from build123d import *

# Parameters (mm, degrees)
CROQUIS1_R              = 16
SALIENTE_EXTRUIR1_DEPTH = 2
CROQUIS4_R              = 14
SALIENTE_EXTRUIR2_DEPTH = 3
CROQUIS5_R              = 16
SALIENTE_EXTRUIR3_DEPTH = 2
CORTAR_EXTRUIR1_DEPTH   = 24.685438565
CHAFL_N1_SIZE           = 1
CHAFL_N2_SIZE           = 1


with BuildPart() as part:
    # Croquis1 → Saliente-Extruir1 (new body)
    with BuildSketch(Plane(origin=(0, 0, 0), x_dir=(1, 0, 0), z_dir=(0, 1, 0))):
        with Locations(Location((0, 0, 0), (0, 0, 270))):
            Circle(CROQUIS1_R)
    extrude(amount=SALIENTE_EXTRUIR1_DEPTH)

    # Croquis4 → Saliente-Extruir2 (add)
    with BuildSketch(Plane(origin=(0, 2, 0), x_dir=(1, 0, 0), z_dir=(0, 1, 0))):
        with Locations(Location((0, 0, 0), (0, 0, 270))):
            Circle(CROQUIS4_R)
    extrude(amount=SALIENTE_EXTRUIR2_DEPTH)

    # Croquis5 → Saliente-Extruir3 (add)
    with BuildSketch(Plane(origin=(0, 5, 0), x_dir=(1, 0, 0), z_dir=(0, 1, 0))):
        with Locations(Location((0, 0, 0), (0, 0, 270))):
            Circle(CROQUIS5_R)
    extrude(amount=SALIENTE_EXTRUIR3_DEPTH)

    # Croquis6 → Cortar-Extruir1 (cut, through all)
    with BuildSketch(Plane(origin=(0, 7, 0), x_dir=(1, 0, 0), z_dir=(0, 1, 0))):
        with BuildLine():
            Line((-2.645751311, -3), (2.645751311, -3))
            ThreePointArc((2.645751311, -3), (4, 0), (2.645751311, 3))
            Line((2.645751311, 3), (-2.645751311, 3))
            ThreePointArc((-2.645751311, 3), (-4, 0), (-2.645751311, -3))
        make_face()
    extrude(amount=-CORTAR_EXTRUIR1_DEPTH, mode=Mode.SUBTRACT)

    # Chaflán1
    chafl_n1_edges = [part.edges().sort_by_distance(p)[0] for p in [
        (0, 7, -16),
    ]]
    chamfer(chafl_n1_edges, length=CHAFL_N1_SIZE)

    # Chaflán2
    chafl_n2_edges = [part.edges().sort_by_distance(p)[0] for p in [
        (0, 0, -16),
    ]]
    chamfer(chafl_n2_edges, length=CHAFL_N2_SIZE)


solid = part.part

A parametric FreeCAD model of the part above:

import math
import FreeCAD as App
import Part
import Sketcher

V = App.Vector
Q = App.Units.Quantity


def edges_at(feature, points):
    """Names of the edges that pass closest to the given points."""
    edges = feature.Shape.Edges
    near = lambda p: min(range(len(edges)), key=lambda i: edges[i].distToShape(Part.Vertex(*p))[0])
    return sorted({f"Edge{near(p) + 1}" for p in points})

doc = App.newDocument("Part")
params = doc.addObject("Spreadsheet::Sheet", "Params")
for row, (alias, value) in enumerate([
    ("sketch1_diameter", "32 mm"),
    ("pad1_length", "2 mm"),
    ("sketch2_diameter", "28 mm"),
    ("pad2_length", "3 mm"),
    ("sketch3_diameter", "32 mm"),
    ("pad3_length", "2 mm"),
    ("sketch4_radius", "4 mm"),
    ("chamfer_size", "1 mm"),
    ("chamfer2_size", "1 mm"),
], start=1):
    params.set(f"A{row}", alias)
    params.set(f"B{row}", "=" + value)
    params.setAlias(f"B{row}", alias)

body = doc.addObject("PartDesign::Body", "Body")

# Sketch on XZ plane
sketch1 = body.newObject("Sketcher::SketchObject", "Sketch")
sketch1.AttachmentSupport = (doc.getObject("XZ_Plane"), [""])
sketch1.MapMode = "FlatFace"
sketch1.addGeometry(Part.Circle(V(0, 0, 0), V(0, 0, 1), 16), False)
sketch1.addConstraint([
    Sketcher.Constraint("Coincident", 0, 3, -1, 1),
    Sketcher.Constraint("Diameter", 0, Q("32 mm")),
])
sketch1.setExpression("Constraints[1]", "Params.sketch1_diameter")
pad1 = body.newObject("PartDesign::Pad", "Pad")
pad1.Profile = sketch1
pad1.setExpression("Length", "Params.pad1_length")
pad1.Reversed = True

# Sketch on XZ plane
sketch2 = body.newObject("Sketcher::SketchObject", "Sketch001")
sketch2.AttachmentSupport = (doc.getObject("XZ_Plane"), [""])
sketch2.MapMode = "FlatFace"
sketch2.AttachmentOffset = App.Placement(V(0, 0, -2), App.Rotation())
sketch2.addGeometry(Part.Circle(V(0, 0, 0), V(0, 0, 1), 14), False)
sketch2.addConstraint([
    Sketcher.Constraint("Coincident", 0, 3, -1, 1),
    Sketcher.Constraint("Diameter", 0, Q("28 mm")),
])
sketch2.setExpression("Constraints[1]", "Params.sketch2_diameter")
pad2 = body.newObject("PartDesign::Pad", "Pad001")
pad2.Profile = sketch2
pad2.setExpression("Length", "Params.pad2_length")
pad2.Reversed = True

# Sketch on XZ plane
sketch3 = body.newObject("Sketcher::SketchObject", "Sketch002")
sketch3.AttachmentSupport = (doc.getObject("XZ_Plane"), [""])
sketch3.MapMode = "FlatFace"
sketch3.AttachmentOffset = App.Placement(V(0, 0, -5), App.Rotation())
sketch3.addGeometry(Part.Circle(V(0, 0, 0), V(0, 0, 1), 16), False)
sketch3.addConstraint([
    Sketcher.Constraint("Coincident", 0, 3, -1, 1),
    Sketcher.Constraint("Diameter", 0, Q("32 mm")),
])
sketch3.setExpression("Constraints[1]", "Params.sketch3_diameter")
pad3 = body.newObject("PartDesign::Pad", "Pad002")
pad3.Profile = sketch3
pad3.setExpression("Length", "Params.pad3_length")
pad3.Reversed = True

# Sketch on XZ plane
sketch4 = body.newObject("Sketcher::SketchObject", "Sketch003")
sketch4.AttachmentSupport = (doc.getObject("XZ_Plane"), [""])
sketch4.MapMode = "FlatFace"
sketch4.AttachmentOffset = App.Placement(V(0, 0, -7), App.Rotation())
sketch4.addGeometry([
    Part.LineSegment(V(-2.6, 3, 0), V(2.6, 3, 0)),
    Part.ArcOfCircle(Part.Circle(V(0, 0, 0), V(0, 0, 1), 4), math.radians(-49), math.radians(49)),
    Part.LineSegment(V(2.6, -3, 0), V(-2.6, -3, 0)),
    Part.ArcOfCircle(Part.Circle(V(0, 0, 0), V(0, 0, 1), 4), math.radians(131), math.radians(229)),
], False)
sketch4.addConstraint([
    Sketcher.Constraint("Coincident", 0, 2, 1, 2),
    Sketcher.Constraint("Coincident", 1, 1, 2, 1),
    Sketcher.Constraint("Coincident", 2, 2, 3, 2),
    Sketcher.Constraint("Coincident", 3, 1, 0, 1),
    Sketcher.Constraint("Horizontal", 0),
    Sketcher.Constraint("Horizontal", 2),
    Sketcher.Constraint("Coincident", 1, 3, -1, 1),
    Sketcher.Constraint("Coincident", 3, 3, -1, 1),
    Sketcher.Constraint("Equal", 1, 3),
    Sketcher.Constraint("Vertical", 0, 2, 1, 1),
    Sketcher.Constraint("Radius", 1, Q("4 mm")),
    Sketcher.Constraint("DistanceY", -1, 1, 0, 2, Q("3 mm")),
])
sketch4.setExpression("Constraints[10]", "Params.sketch4_radius")
pocket1 = body.newObject("PartDesign::Pocket", "Pocket")
pocket1.Profile = sketch4
pocket1.Type = "ThroughAll"
pocket1.Reversed = True
doc.recompute()

chamfer = body.newObject("PartDesign::Chamfer", "Chamfer")
chamfer.Base = (pocket1, edges_at(pocket1, [(0, 7, -16)]))
chamfer.setExpression("Size", "Params.chamfer_size")
doc.recompute()

chamfer2 = body.newObject("PartDesign::Chamfer", "Chamfer001")
chamfer2.Base = (chamfer, edges_at(chamfer, [(0, 0, -16)]))
chamfer2.setExpression("Size", "Params.chamfer2_size")

doc.recompute()
